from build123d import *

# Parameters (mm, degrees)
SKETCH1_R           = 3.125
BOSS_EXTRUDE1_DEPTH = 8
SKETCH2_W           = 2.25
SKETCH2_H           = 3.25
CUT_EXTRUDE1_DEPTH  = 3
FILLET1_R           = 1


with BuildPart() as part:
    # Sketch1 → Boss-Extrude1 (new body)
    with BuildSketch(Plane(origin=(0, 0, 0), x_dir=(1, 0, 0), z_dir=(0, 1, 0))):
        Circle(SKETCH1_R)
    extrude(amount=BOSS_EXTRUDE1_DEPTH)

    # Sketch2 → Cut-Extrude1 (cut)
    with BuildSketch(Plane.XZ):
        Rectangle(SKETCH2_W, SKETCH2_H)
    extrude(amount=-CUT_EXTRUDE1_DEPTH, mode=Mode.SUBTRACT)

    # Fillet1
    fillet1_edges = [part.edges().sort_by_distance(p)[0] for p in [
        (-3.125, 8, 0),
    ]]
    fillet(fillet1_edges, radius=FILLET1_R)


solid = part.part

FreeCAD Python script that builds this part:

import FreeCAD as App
import Part
import Sketcher
from FreeCAD import Vector


def edges_at(feature, points):
    """Names of the edges that pass closest to the given points."""
    edges = feature.Shape.Edges
    near = lambda p: min(range(len(edges)), key=lambda i: edges[i].distToShape(Part.Vertex(*p))[0])
    return sorted({f"Edge{near(p) + 1}" for p in points})


def add_polygon(sketch, points):
    """Adds a closed chain of lines whose ends are joined by coincident constraints."""
    first, n = sketch.GeometryCount, len(points)
    for a, b in zip(points, points[1:] + points[:1]):
        sketch.addGeometry(Part.LineSegment(App.Vector(*a, 0), App.Vector(*b, 0)), False)
    for i in range(n):
        sketch.addConstraint(Sketcher.Constraint("Coincident", first + i, 2, first + (i + 1) % n, 1))

doc = App.newDocument("Part")
params = doc.addObject("Spreadsheet::Sheet", "Params")
for row, (alias, value) in enumerate([
    ("sketch1_diameter", "6.25 mm"),
    ("pad1_length", "8 mm"),
    ("sketch2_width", "2.25 mm"),
    ("sketch2_height", "3.25 mm"),
    ("pocket1_length", "3 mm"),
    ("fillet_radius", "1 mm"),
], start=1):
    params.set(f"A{row}", alias)
    params.set(f"B{row}", "=" + value)
    params.setAlias(f"B{row}", alias)

body = doc.addObject("PartDesign::Body", "Body")

sketch1 = body.newObject("Sketcher::SketchObject", "Sketch")
sketch1.AttachmentSupport = (doc.getObject("XZ_Plane"), [""])
sketch1.MapMode = "FlatFace"
sketch1.addGeometry(Part.Circle(Vector(0, 0, 0), Vector(0, 0, 1), 3.1), False)
sketch1.addConstraint(Sketcher.Constraint("Coincident", 0, 3, -1, 1))
sketch1.addConstraint(Sketcher.Constraint("Diameter", 0, 6.25))
sketch1.setExpression("Constraints[1]", "Params.sketch1_diameter")
pad1 = body.newObject("PartDesign::Pad", "Pad")
pad1.Profile = sketch1
pad1.setExpression("Length", "Params.pad1_length")
pad1.Reversed = True

sketch2 = body.newObject("Sketcher::SketchObject", "Sketch001")
sketch2.AttachmentSupport = (doc.getObject("XZ_Plane"), [""])
sketch2.MapMode = "FlatFace"
add_polygon(sketch2, [(-1.1, 1.6), (-1.1, -1.6), (1.1, -1.6), (1.1, 1.6)])
sketch2.addConstraint(Sketcher.Constraint("Vertical", 0))
sketch2.addConstraint(Sketcher.Constraint("Horizontal", 1))
sketch2.addConstraint(Sketcher.Constraint("Vertical", 2))
sketch2.addConstraint(Sketcher.Constraint("Horizontal", 3))
sketch2.addConstraint(Sketcher.Constraint("Symmetric", 0, 2, 2, 2, -1, 1))
sketch2.addConstraint(Sketcher.Constraint("DistanceX", 1, 1, 1, 2, 2.25))
sketch2.addConstraint(Sketcher.Constraint("DistanceY", 0, 2, 0, 1, 3.25))
sketch2.setExpression("Constraints[9]", "Params.sketch2_width")
sketch2.setExpression("Constraints[10]", "Params.sketch2_height")
pocket1 = body.newObject("PartDesign::Pocket", "Pocket")
pocket1.Profile = sketch2
pocket1.setExpression("Length", "Params.pocket1_length")
doc.recompute()

fillet = body.newObject("PartDesign::Fillet", "Fillet")
fillet.Base = (pocket1, edges_at(pocket1, [(-3.125, 8, 0)]))
fillet.setExpression("Radius", "Params.fillet_radius")

doc.recompute()
